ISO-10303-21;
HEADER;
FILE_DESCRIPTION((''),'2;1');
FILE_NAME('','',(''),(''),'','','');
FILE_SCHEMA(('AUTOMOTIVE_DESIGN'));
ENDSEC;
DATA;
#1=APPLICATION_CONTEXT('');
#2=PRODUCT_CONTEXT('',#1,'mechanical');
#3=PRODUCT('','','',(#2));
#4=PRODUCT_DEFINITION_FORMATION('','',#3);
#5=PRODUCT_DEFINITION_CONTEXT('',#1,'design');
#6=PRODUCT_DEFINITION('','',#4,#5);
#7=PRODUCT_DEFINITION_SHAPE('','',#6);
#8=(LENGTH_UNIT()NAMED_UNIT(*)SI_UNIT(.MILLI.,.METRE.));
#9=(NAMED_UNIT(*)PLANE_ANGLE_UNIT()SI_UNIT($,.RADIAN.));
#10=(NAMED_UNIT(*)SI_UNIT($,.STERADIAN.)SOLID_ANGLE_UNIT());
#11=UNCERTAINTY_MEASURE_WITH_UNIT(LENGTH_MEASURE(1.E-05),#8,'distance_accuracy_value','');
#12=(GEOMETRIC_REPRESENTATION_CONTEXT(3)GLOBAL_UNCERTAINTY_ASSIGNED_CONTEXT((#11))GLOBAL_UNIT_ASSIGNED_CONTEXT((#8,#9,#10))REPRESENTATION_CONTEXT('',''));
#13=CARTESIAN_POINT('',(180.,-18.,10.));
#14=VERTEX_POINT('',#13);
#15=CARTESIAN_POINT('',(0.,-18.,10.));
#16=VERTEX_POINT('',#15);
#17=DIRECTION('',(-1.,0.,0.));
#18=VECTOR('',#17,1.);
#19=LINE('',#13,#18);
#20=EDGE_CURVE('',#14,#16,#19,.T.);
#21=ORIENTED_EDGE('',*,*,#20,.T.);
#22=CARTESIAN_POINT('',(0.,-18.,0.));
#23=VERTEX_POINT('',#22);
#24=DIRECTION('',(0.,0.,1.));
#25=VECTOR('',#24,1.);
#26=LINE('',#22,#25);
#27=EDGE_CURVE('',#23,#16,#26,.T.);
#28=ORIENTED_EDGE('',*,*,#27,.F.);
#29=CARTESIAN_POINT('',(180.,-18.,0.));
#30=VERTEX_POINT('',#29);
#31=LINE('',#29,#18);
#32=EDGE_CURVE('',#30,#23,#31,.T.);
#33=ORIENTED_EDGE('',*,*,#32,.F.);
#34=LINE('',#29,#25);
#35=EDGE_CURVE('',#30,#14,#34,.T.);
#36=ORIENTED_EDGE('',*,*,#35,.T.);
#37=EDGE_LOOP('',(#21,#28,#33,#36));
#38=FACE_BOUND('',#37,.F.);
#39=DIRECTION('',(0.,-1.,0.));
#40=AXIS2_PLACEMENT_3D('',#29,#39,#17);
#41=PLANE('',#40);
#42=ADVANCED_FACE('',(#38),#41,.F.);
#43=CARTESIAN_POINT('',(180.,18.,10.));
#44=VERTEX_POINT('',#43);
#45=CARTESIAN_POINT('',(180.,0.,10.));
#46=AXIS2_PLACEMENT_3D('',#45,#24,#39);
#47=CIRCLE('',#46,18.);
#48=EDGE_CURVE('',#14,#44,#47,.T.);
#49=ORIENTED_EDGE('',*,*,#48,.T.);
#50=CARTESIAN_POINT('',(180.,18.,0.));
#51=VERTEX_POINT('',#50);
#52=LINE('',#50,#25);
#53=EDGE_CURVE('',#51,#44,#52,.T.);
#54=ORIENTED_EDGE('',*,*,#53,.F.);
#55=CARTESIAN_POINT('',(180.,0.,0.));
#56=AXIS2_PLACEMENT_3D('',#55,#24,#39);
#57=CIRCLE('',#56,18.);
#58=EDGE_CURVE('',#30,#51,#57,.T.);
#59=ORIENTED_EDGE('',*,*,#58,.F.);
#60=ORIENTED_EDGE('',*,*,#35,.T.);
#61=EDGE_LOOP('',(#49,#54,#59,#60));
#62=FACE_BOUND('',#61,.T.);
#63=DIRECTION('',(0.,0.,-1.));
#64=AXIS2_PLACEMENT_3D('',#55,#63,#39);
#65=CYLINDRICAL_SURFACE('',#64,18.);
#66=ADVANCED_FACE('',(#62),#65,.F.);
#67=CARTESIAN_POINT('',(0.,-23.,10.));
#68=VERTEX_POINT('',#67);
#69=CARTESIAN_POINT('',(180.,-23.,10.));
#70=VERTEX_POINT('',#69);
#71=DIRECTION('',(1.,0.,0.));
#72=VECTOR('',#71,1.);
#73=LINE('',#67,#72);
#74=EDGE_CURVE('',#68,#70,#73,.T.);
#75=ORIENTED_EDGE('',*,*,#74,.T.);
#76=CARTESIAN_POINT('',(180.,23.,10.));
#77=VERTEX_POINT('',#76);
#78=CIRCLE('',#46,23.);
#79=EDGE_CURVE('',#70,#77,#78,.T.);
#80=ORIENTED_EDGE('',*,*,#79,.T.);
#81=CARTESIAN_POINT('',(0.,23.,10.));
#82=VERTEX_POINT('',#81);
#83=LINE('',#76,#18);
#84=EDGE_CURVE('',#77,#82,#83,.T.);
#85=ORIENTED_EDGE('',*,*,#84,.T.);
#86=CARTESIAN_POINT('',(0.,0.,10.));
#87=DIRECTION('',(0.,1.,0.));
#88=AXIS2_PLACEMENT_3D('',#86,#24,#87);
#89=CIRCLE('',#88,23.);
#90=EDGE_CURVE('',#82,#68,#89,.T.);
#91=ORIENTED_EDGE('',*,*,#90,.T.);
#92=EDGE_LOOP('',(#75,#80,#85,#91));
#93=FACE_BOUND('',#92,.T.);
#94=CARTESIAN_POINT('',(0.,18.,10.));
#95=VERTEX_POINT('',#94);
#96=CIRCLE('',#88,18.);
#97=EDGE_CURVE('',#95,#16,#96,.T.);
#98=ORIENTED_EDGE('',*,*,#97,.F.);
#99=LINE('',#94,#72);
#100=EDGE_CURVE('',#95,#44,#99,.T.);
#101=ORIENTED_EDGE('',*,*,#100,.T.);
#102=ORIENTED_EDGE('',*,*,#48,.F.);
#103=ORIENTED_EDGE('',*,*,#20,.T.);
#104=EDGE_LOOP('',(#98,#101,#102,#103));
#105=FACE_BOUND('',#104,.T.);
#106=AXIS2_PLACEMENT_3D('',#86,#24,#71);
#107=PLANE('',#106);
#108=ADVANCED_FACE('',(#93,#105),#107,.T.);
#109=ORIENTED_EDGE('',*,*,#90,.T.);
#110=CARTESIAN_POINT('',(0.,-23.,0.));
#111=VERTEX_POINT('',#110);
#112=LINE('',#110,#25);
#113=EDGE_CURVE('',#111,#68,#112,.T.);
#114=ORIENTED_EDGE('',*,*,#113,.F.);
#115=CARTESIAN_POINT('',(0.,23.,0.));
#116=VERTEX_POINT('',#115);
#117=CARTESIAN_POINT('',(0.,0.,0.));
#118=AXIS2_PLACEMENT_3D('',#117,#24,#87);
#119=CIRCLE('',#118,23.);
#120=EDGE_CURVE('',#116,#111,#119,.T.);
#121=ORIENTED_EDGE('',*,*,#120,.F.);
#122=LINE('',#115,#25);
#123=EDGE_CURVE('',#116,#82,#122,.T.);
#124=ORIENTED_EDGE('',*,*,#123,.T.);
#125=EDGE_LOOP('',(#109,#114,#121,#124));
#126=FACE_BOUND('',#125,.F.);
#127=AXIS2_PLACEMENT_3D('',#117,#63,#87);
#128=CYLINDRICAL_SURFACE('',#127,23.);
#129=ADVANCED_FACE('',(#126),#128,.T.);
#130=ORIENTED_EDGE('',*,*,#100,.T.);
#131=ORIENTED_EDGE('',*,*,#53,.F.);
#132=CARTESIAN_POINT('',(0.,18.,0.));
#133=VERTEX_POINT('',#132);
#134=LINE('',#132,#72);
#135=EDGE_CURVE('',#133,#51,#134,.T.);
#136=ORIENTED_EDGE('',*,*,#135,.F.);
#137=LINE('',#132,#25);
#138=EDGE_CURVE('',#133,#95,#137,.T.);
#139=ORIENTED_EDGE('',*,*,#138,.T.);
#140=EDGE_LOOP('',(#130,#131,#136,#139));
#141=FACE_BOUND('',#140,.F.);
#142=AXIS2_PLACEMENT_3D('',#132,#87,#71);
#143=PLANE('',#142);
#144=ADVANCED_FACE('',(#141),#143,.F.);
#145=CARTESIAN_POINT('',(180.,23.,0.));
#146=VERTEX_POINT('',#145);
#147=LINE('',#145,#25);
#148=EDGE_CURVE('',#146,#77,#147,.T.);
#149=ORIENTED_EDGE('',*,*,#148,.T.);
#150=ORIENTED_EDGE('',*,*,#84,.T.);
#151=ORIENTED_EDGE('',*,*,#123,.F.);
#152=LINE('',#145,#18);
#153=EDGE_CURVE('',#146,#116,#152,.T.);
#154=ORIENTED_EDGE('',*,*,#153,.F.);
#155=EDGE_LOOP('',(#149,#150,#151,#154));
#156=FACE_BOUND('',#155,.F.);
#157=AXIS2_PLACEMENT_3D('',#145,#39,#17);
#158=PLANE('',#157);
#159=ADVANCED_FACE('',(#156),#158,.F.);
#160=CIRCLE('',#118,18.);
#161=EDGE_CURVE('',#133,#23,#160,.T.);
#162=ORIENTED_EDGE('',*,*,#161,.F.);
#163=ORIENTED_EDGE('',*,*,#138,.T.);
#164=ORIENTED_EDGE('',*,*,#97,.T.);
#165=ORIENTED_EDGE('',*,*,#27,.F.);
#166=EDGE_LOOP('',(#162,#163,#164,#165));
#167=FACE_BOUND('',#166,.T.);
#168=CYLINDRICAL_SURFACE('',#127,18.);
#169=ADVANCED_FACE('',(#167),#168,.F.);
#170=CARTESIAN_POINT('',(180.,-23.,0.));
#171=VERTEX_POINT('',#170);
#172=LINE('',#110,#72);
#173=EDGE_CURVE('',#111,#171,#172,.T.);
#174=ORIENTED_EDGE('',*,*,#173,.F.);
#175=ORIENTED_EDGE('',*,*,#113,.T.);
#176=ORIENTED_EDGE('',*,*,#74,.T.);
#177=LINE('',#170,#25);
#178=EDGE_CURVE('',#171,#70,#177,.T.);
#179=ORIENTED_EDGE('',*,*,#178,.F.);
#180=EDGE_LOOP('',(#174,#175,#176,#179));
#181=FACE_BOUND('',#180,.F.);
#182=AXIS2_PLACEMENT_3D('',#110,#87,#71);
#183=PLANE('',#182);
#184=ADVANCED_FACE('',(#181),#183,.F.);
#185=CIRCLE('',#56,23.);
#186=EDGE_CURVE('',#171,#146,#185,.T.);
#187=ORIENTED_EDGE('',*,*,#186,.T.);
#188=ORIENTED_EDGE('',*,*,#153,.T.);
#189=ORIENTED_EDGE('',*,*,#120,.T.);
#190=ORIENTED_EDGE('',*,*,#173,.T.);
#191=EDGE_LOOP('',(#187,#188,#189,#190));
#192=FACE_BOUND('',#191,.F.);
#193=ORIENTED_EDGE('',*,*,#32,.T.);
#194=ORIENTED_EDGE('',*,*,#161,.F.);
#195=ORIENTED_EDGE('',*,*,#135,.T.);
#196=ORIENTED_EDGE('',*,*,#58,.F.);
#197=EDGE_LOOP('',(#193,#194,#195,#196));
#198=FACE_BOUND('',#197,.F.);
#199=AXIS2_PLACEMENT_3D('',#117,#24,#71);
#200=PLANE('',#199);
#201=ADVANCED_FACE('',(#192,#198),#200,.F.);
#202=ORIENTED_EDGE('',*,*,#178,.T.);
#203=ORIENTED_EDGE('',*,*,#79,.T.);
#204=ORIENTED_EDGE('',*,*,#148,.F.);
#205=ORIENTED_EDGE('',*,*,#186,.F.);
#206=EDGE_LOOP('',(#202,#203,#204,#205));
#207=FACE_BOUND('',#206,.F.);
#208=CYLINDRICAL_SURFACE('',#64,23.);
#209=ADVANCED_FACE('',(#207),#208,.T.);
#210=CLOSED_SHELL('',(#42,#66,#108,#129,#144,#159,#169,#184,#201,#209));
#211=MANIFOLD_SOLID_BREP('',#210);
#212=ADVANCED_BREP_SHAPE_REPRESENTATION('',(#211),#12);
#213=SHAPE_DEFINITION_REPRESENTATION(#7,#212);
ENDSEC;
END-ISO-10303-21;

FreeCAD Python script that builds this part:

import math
import FreeCAD as App
import Part
import Sketcher

V = App.Vector
Q = App.Units.Quantity

doc = App.newDocument("Part")
params = doc.addObject("Spreadsheet::Sheet", "Params")
for row, (alias, value) in enumerate([
    ("sketch1_radius", "18 mm"),
    ("sketch1_width", "180 mm"),
    ("sketch1_radius2", "23 mm"),
    ("pad1_length", "10 mm"),
], start=1):
    params.set(f"A{row}", alias)
    params.set(f"B{row}", "=" + value)
    params.setAlias(f"B{row}", alias)

body = doc.addObject("PartDesign::Body", "Body")

# Sketch on XY plane
sketch1 = doc.addObject("Sketcher::SketchObject", "Sketch")
body.addObject(sketch1)
sketch1.AttachmentSupport = (doc.XY_Plane, [""])
sketch1.MapMode = "FlatFace"
sketch1.addGeometry([
    Part.ArcOfCircle(Part.Circle(V(180, 0, 0), V(0, 0, 1), 23), math.radians(-90), math.radians(90)),  # 0
    Part.LineSegment(V(180, 23, 0), V(0, 23, 0)),  # 1
    Part.ArcOfCircle(Part.Circle(V(0, 0, 0), V(0, 0, 1), 23), math.radians(90), math.radians(270)),  # 2
    Part.LineSegment(V(0, -23, 0), V(180, -23, 0)),  # 3
    Part.ArcOfCircle(Part.Circle(V(0, 0, 0), V(0, 0, 1), 18), math.radians(90), math.radians(270)),  # 4
    Part.LineSegment(V(0, 18, 0), V(180, 18, 0)),  # 5
    Part.ArcOfCircle(Part.Circle(V(180, 0, 0), V(0, 0, 1), 18), math.radians(-90), math.radians(90)),  # 6
    Part.LineSegment(V(180, -18, 0), V(0, -18, 0)),  # 7
], False)
sketch1.addConstraint([
    Sketcher.Constraint("Tangent", 0, 2, 1, 1),
    Sketcher.Constraint("Tangent", 1, 2, 2, 1),
    Sketcher.Constraint("Tangent", 2, 2, 3, 1),
    Sketcher.Constraint("Tangent", 3, 2, 0, 1),
    Sketcher.Constraint("Tangent", 4, 1, 5, 1),
    Sketcher.Constraint("Tangent", 5, 2, 6, 2),
    Sketcher.Constraint("Tangent", 6, 1, 7, 1),
    Sketcher.Constraint("Tangent", 7, 2, 4, 2),
    Sketcher.Constraint("Horizontal", 1),
    Sketcher.Constraint("Horizontal", 3),
    Sketcher.Constraint("Horizontal", 5),
    Sketcher.Constraint("Horizontal", 7),
    Sketcher.Constraint("Coincident", 2, 3, -1, 1),
    Sketcher.Constraint("Coincident", 4, 3, -1, 1),
    Sketcher.Constraint("Vertical", 6, 3, 0, 2),
    Sketcher.Constraint("Radius", 4, Q("18 mm")),
    Sketcher.Constraint("DistanceX", 1, 2, 1, 1, Q("180 mm")),
    Sketcher.Constraint("Radius", 0, Q("23 mm")),
])
sketch1.setExpression("Constraints[15]", "Params.sketch1_radius")
sketch1.setExpression("Constraints[16]", "Params.sketch1_width")
sketch1.setExpression("Constraints[17]", "Params.sketch1_radius2")
pad1 = doc.addObject("PartDesign::Pad", "Pad")
body.addObject(pad1)
pad1.Profile = sketch1
pad1.setExpression("Length", "Params.pad1_length")

doc.recompute()
